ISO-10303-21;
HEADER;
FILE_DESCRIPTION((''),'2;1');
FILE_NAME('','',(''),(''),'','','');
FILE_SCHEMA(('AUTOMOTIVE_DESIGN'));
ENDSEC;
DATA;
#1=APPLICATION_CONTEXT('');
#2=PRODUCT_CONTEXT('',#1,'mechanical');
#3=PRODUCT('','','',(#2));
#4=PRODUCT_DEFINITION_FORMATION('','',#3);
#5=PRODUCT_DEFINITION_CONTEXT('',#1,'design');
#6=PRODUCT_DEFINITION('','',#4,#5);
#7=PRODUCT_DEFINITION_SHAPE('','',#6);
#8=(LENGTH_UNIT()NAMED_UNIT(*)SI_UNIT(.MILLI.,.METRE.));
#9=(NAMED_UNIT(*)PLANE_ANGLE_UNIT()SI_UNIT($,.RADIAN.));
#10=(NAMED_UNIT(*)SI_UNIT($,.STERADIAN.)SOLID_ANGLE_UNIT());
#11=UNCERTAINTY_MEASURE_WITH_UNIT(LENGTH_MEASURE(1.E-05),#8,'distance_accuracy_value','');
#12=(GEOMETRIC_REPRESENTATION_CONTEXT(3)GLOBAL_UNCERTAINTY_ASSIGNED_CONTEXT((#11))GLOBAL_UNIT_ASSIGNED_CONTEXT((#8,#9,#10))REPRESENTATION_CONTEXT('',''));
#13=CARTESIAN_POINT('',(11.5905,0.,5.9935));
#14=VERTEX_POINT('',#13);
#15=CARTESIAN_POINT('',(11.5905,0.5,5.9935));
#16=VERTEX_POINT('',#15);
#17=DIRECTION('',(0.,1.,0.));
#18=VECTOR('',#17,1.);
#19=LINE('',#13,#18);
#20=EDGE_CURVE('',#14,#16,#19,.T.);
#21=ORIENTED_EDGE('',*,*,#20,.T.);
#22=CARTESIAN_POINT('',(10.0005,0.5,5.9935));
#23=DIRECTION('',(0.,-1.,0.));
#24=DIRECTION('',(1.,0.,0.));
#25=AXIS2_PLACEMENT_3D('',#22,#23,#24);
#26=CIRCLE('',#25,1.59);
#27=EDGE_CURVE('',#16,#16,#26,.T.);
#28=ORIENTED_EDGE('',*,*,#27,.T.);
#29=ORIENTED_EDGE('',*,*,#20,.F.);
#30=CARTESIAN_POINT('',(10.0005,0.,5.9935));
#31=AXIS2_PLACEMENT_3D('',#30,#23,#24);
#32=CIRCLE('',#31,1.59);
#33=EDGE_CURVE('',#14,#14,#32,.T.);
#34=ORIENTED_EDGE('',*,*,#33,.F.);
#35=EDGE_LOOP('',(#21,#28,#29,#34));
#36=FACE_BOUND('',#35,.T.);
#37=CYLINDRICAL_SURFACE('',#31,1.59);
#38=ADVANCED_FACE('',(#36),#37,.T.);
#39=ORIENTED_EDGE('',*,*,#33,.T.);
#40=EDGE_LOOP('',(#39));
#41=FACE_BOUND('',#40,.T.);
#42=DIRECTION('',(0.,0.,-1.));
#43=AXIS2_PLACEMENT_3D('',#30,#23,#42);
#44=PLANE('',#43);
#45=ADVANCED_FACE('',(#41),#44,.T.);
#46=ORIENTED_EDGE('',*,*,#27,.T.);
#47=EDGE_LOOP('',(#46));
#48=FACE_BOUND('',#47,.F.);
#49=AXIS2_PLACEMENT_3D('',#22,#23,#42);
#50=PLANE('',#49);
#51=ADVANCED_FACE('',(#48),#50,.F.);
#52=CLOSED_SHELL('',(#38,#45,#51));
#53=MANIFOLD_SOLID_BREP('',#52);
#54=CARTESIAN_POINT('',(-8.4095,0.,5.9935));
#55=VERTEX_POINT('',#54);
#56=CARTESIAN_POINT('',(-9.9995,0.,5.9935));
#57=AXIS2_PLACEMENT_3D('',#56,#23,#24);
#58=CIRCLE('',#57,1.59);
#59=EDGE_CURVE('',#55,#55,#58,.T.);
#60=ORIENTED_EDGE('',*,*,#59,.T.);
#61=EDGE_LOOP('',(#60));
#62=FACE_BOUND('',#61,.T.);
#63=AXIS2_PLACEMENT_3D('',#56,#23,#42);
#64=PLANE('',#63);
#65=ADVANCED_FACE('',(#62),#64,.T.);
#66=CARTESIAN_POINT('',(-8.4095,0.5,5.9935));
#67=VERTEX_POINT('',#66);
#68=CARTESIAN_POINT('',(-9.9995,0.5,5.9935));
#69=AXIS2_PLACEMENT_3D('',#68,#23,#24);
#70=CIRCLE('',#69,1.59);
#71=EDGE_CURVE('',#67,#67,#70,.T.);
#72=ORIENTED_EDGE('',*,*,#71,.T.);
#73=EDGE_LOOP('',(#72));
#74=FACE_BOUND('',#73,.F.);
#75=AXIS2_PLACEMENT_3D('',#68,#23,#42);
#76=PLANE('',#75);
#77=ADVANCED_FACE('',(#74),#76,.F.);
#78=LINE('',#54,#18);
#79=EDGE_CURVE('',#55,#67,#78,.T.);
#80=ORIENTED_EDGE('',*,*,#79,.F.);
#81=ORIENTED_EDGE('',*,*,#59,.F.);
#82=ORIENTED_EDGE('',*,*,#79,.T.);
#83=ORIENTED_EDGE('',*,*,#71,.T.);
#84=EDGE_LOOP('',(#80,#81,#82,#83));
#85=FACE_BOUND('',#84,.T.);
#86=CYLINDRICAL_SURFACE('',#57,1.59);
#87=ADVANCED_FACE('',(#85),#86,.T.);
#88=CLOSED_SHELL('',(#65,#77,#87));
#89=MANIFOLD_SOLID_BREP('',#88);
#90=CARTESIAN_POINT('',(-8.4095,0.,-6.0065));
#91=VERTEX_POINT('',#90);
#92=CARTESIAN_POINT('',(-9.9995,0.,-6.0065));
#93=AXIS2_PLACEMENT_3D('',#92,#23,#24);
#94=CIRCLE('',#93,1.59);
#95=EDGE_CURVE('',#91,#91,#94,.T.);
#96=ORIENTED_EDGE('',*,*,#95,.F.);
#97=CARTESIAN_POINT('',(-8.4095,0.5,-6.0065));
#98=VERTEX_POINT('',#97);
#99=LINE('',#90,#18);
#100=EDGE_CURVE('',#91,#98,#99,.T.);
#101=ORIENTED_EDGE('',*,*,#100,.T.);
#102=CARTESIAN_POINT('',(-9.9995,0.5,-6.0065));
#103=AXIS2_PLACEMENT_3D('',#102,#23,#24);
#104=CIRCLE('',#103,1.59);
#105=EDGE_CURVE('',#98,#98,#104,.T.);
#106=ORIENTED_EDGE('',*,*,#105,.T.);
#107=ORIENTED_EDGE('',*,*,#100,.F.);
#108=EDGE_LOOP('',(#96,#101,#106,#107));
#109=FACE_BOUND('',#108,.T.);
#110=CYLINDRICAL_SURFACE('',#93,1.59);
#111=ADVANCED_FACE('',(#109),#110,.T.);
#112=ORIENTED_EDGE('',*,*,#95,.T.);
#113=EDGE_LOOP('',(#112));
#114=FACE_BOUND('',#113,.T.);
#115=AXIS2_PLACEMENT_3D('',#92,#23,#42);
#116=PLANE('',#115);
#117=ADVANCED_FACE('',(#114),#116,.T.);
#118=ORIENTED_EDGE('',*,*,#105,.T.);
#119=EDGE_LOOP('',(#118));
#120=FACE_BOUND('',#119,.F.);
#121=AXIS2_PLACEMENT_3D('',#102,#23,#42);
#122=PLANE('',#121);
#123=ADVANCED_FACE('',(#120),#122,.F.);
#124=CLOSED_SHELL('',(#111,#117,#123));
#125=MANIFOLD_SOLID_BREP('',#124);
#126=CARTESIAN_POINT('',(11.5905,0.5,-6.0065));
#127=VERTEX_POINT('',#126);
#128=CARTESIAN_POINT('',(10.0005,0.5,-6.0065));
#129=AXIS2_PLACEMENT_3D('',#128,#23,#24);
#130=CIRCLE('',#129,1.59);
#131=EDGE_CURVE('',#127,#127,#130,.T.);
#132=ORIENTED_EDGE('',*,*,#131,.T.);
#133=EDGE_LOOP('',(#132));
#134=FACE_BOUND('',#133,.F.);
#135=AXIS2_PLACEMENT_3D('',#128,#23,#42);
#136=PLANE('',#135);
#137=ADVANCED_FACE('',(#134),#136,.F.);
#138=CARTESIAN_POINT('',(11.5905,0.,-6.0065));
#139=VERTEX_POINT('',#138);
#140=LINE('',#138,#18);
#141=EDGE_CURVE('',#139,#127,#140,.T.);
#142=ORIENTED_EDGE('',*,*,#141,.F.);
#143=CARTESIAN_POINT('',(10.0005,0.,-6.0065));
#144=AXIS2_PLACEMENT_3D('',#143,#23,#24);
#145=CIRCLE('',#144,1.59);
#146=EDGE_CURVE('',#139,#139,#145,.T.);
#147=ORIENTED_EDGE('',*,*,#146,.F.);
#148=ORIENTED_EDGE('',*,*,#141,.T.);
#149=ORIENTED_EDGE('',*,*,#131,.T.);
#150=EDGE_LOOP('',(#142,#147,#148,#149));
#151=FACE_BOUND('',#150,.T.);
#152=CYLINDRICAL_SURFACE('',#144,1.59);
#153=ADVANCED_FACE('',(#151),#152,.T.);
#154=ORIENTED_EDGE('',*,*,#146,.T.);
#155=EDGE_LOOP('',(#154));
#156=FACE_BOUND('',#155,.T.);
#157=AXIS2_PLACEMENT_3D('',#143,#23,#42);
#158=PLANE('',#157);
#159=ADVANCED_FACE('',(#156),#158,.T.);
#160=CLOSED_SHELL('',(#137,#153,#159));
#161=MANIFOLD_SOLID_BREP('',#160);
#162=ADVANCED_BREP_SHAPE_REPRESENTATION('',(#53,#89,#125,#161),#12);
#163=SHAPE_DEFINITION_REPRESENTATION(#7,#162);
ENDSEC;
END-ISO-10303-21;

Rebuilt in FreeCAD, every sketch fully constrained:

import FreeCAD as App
import Part
import Sketcher
Q = App.Units.Quantity

doc = App.newDocument("Part")
body = doc.addObject("PartDesign::Body", "Body")
body.AllowCompound = True

# Sketch on XZ plane
sketch1 = doc.addObject("Sketcher::SketchObject", "Sketch")
body.addObject(sketch1)
sketch1.AttachmentSupport = (doc.XZ_Plane, [""])
sketch1.MapMode = "FlatFace"
sketch1.addGeometry(Part.Circle(App.Vector(-10, 6, 0), App.Vector(0, 0, 1), 1.6), False)
sketch1.addGeometry(Part.Circle(App.Vector(10, 6, 0), App.Vector(0, 0, 1), 1.6), False)
sketch1.addGeometry(Part.Circle(App.Vector(10, -6, 0), App.Vector(0, 0, 1), 1.6), False)
sketch1.addGeometry(Part.Circle(App.Vector(-10, -6, 0), App.Vector(0, 0, 1), 1.6), False)
sketch1.addConstraint(Sketcher.Constraint("Equal", 0, 1))
sketch1.addConstraint(Sketcher.Constraint("Equal", 1, 2))
sketch1.addConstraint(Sketcher.Constraint("Equal", 2, 3))
sketch1.addConstraint(Sketcher.Constraint("Horizontal", 0, 3, 1, 3))
sketch1.addConstraint(Sketcher.Constraint("Horizontal", 2, 3, 3, 3))
sketch1.addConstraint(Sketcher.Constraint("Vertical", 1, 3, 2, 3))
sketch1.addConstraint(Sketcher.Constraint("Vertical", 0, 3, 3, 3))
sketch1.addConstraint(Sketcher.Constraint("Diameter", 0, Q("3.18 mm")))
sketch1.addConstraint(Sketcher.Constraint("DistanceX", 0, 3, 1, 3, Q("20 mm")))
sketch1.addConstraint(Sketcher.Constraint("DistanceY", 2, 3, 1, 3, Q("12 mm")))
sketch1.addConstraint(Sketcher.Constraint("DistanceX", 0, 3, -1, 1, Q("9.9995 mm")))
sketch1.addConstraint(Sketcher.Constraint("DistanceY", -1, 1, 0, 3, Q("5.9935 mm")))
pad1 = doc.addObject("PartDesign::Pad", "Pad")
body.addObject(pad1)
pad1.Profile = sketch1
pad1.Length = 0.5
pad1.Reversed = True

doc.recompute()
